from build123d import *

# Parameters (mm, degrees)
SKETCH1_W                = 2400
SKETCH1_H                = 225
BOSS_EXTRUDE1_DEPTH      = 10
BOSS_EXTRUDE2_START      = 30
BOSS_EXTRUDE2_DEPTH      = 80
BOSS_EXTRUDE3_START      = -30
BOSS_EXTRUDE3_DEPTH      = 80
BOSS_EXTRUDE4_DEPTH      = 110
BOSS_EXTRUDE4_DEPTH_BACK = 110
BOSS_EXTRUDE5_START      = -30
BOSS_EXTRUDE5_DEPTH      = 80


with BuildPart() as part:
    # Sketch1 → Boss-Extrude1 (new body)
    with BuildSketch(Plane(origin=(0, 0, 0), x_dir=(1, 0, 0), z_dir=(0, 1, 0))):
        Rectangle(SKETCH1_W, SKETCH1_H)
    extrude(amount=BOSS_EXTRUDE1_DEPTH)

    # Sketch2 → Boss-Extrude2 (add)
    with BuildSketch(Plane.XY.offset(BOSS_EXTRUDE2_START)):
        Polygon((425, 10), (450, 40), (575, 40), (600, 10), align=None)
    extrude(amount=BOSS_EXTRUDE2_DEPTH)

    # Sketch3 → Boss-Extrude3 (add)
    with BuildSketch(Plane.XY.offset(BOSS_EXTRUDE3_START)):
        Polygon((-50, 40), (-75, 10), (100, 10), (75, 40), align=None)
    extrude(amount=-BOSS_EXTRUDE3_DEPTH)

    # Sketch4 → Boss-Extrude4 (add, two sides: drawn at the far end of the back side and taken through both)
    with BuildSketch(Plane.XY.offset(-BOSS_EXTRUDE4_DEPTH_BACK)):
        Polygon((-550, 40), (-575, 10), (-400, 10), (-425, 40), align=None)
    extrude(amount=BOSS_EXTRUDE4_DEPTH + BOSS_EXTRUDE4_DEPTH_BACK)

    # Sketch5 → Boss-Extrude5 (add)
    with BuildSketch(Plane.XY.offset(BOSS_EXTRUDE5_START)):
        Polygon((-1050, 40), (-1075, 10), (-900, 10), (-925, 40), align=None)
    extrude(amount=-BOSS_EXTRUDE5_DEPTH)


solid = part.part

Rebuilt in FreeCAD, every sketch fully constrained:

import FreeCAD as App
import Part
import Sketcher

V = App.Vector
Q = App.Units.Quantity

doc = App.newDocument("Part")
params = doc.addObject("Spreadsheet::Sheet", "Params")
for row, (alias, value) in enumerate([
    ("sketch1_width", "2400 mm"),
    ("sketch1_height", "225 mm"),
    ("pad1_length", "10 mm"),
    ("sketch2_width", "175 mm"),
    ("sketch2_width2", "125 mm"),
    ("pad2_length", "80 mm"),
    ("sketch3_width", "175 mm"),
    ("sketch3_width2", "125 mm"),
    ("pad3_length", "80 mm"),
    ("sketch4_width", "175 mm"),
    ("sketch4_width2", "125 mm"),
    ("pad4_length", "110 mm"),
    ("pad4_length2", "110 mm"),
    ("sketch5_width", "175 mm"),
    ("sketch5_width2", "125 mm"),
    ("pad5_length", "80 mm"),
], start=1):
    params.set(f"A{row}", alias)
    params.set(f"B{row}", "=" + value)
    params.setAlias(f"B{row}", alias)

body = doc.addObject("PartDesign::Body", "Body")

# Sketch on XZ plane
sketch1 = body.newObject("Sketcher::SketchObject", "Sketch")
sketch1.AttachmentSupport = (doc.getObject("XZ_Plane"), [""])
sketch1.MapMode = "FlatFace"
sketch1.addGeometry([
    Part.LineSegment(V(-1200, -112.5, 0), V(-1200, 112.5, 0)),
    Part.LineSegment(V(-1200, 112.5, 0), V(1200, 112.5, 0)),
    Part.LineSegment(V(1200, 112.5, 0), V(1200, -112.5, 0)),
    Part.LineSegment(V(1200, -112.5, 0), V(-1200, -112.5, 0)),
], False)
sketch1.addConstraint([
    Sketcher.Constraint("Coincident", 0, 2, 1, 1),
    Sketcher.Constraint("Coincident", 1, 2, 2, 1),
    Sketcher.Constraint("Coincident", 2, 2, 3, 1),
    Sketcher.Constraint("Coincident", 3, 2, 0, 1),
    Sketcher.Constraint("Vertical", 0),
    Sketcher.Constraint("Horizontal", 1),
    Sketcher.Constraint("Vertical", 2),
    Sketcher.Constraint("Horizontal", 3),
    Sketcher.Constraint("Symmetric", 0, 2, 2, 2, -1, 1),
    Sketcher.Constraint("DistanceX", 1, 1, 1, 2, Q("2400 mm")),
    Sketcher.Constraint("DistanceY", 0, 1, 0, 2, Q("225 mm")),
])
sketch1.setExpression("Constraints[9]", "Params.sketch1_width")
sketch1.setExpression("Constraints[10]", "Params.sketch1_height")
pad1 = body.newObject("PartDesign::Pad", "Pad")
pad1.Profile = sketch1
pad1.setExpression("Length", "Params.pad1_length")
pad1.Reversed = True

# Sketch on XY plane
sketch2 = body.newObject("Sketcher::SketchObject", "Sketch001")
sketch2.AttachmentSupport = (doc.getObject("XY_Plane"), [""])
sketch2.MapMode = "FlatFace"
sketch2.AttachmentOffset = App.Placement(V(0, 0, 30), App.Rotation())
sketch2.addGeometry([
    Part.LineSegment(V(450, 40, 0), V(425, 10, 0)),
    Part.LineSegment(V(425, 10, 0), V(600, 10, 0)),
    Part.LineSegment(V(600, 10, 0), V(575, 40, 0)),
    Part.LineSegment(V(575, 40, 0), V(450, 40, 0)),
], False)
sketch2.addConstraint([
    Sketcher.Constraint("Coincident", 0, 2, 1, 1),
    Sketcher.Constraint("Coincident", 1, 2, 2, 1),
    Sketcher.Constraint("Coincident", 2, 2, 3, 1),
    Sketcher.Constraint("Coincident", 3, 2, 0, 1),
    Sketcher.Constraint("Horizontal", 1),
    Sketcher.Constraint("Horizontal", 3),
    Sketcher.Constraint("Equal", 0, 2),
    Sketcher.Constraint("DistanceX", 1, 1, 1, 2, Q("175 mm")),
    Sketcher.Constraint("DistanceX", 3, 2, 3, 1, Q("125 mm")),
    Sketcher.Constraint("DistanceX", -1, 1, 0, 2, Q("425 mm")),
    Sketcher.Constraint("DistanceY", -1, 1, 0, 2, Q("10 mm")),
    Sketcher.Constraint("DistanceY", -1, 1, 2, 2, Q("40 mm")),
])
sketch2.setExpression("Constraints[7]", "Params.sketch2_width")
sketch2.setExpression("Constraints[8]", "Params.sketch2_width2")
pad2 = body.newObject("PartDesign::Pad", "Pad001")
pad2.Profile = sketch2
pad2.setExpression("Length", "Params.pad2_length")

# Sketch on XY plane
sketch3 = body.newObject("Sketcher::SketchObject", "Sketch002")
sketch3.AttachmentSupport = (doc.getObject("XY_Plane"), [""])
sketch3.MapMode = "FlatFace"
sketch3.AttachmentOffset = App.Placement(V(0, 0, -30), App.Rotation())
sketch3.addGeometry([
    Part.LineSegment(V(-50, 40, 0), V(-75, 10, 0)),
    Part.LineSegment(V(-75, 10, 0), V(100, 10, 0)),
    Part.LineSegment(V(100, 10, 0), V(75, 40, 0)),
    Part.LineSegment(V(75, 40, 0), V(-50, 40, 0)),
], False)
sketch3.addConstraint([
    Sketcher.Constraint("Coincident", 0, 2, 1, 1),
    Sketcher.Constraint("Coincident", 1, 2, 2, 1),
    Sketcher.Constraint("Coincident", 2, 2, 3, 1),
    Sketcher.Constraint("Coincident", 3, 2, 0, 1),
    Sketcher.Constraint("Horizontal", 1),
    Sketcher.Constraint("Horizontal", 3),
    Sketcher.Constraint("Equal", 0, 2),
    Sketcher.Constraint("DistanceX", 1, 1, 1, 2, Q("175 mm")),
    Sketcher.Constraint("DistanceX", 3, 2, 3, 1, Q("125 mm")),
    Sketcher.Constraint("DistanceX", 0, 2, -1, 1, Q("75 mm")),
    Sketcher.Constraint("DistanceY", -1, 1, 0, 2, Q("10 mm")),
    Sketcher.Constraint("DistanceY", -1, 1, 2, 2, Q("40 mm")),
])
sketch3.setExpression("Constraints[7]", "Params.sketch3_width")
sketch3.setExpression("Constraints[8]", "Params.sketch3_width2")
pad3 = body.newObject("PartDesign::Pad", "Pad002")
pad3.Profile = sketch3
pad3.setExpression("Length", "Params.pad3_length")
pad3.Reversed = True

# Sketch on XY plane
sketch4 = body.newObject("Sketcher::SketchObject", "Sketch003")
sketch4.AttachmentSupport = (doc.getObject("XY_Plane"), [""])
sketch4.MapMode = "FlatFace"
sketch4.addGeometry([
    Part.LineSegment(V(-550, 40, 0), V(-575, 10, 0)),
    Part.LineSegment(V(-575, 10, 0), V(-400, 10, 0)),
    Part.LineSegment(V(-400, 10, 0), V(-425, 40, 0)),
    Part.LineSegment(V(-425, 40, 0), V(-550, 40, 0)),
], False)
sketch4.addConstraint([
    Sketcher.Constraint("Coincident", 0, 2, 1, 1),
    Sketcher.Constraint("Coincident", 1, 2, 2, 1),
    Sketcher.Constraint("Coincident", 2, 2, 3, 1),
    Sketcher.Constraint("Coincident", 3, 2, 0, 1),
    Sketcher.Constraint("Horizontal", 1),
    Sketcher.Constraint("Horizontal", 3),
    Sketcher.Constraint("Equal", 0, 2),
    Sketcher.Constraint("DistanceX", 1, 1, 1, 2, Q("175 mm")),
    Sketcher.Constraint("DistanceX", 3, 2, 3, 1, Q("125 mm")),
    Sketcher.Constraint("DistanceX", 0, 2, -1, 1, Q("575 mm")),
    Sketcher.Constraint("DistanceY", -1, 1, 0, 2, Q("10 mm")),
    Sketcher.Constraint("DistanceY", -1, 1, 2, 2, Q("40 mm")),
])
sketch4.setExpression("Constraints[7]", "Params.sketch4_width")
sketch4.setExpression("Constraints[8]", "Params.sketch4_width2")
pad4 = body.newObject("PartDesign::Pad", "Pad003")
pad4.Profile = sketch4
pad4.Type = "TwoLengths"
pad4.setExpression("Length", "Params.pad4_length")
pad4.setExpression("Length2", "Params.pad4_length2")

# Sketch on XY plane
sketch5 = body.newObject("Sketcher::SketchObject", "Sketch004")
sketch5.AttachmentSupport = (doc.getObject("XY_Plane"), [""])
sketch5.MapMode = "FlatFace"
sketch5.AttachmentOffset = App.Placement(V(0, 0, -30), App.Rotation())
sketch5.addGeometry([
    Part.LineSegment(V(-1050, 40, 0), V(-1075, 10, 0)),
    Part.LineSegment(V(-1075, 10, 0), V(-900, 10, 0)),
    Part.LineSegment(V(-900, 10, 0), V(-925, 40, 0)),
    Part.LineSegment(V(-925, 40, 0), V(-1050, 40, 0)),
], False)
sketch5.addConstraint([
    Sketcher.Constraint("Coincident", 0, 2, 1, 1),
    Sketcher.Constraint("Coincident", 1, 2, 2, 1),
    Sketcher.Constraint("Coincident", 2, 2, 3, 1),
    Sketcher.Constraint("Coincident", 3, 2, 0, 1),
    Sketcher.Constraint("Horizontal", 1),
    Sketcher.Constraint("Horizontal", 3),
    Sketcher.Constraint("Equal", 0, 2),
    Sketcher.Constraint("DistanceX", 1, 1, 1, 2, Q("175 mm")),
    Sketcher.Constraint("DistanceX", 3, 2, 3, 1, Q("125 mm")),
    Sketcher.Constraint("DistanceX", 0, 2, -1, 1, Q("1075 mm")),
    Sketcher.Constraint("DistanceY", -1, 1, 0, 2, Q("10 mm")),
    Sketcher.Constraint("DistanceY", -1, 1, 2, 2, Q("40 mm")),
])
sketch5.setExpression("Constraints[7]", "Params.sketch5_width")
sketch5.setExpression("Constraints[8]", "Params.sketch5_width2")
pad5 = body.newObject("PartDesign::Pad", "Pad004")
pad5.Profile = sketch5
pad5.setExpression("Length", "Params.pad5_length")
pad5.Reversed = True

doc.recompute()
